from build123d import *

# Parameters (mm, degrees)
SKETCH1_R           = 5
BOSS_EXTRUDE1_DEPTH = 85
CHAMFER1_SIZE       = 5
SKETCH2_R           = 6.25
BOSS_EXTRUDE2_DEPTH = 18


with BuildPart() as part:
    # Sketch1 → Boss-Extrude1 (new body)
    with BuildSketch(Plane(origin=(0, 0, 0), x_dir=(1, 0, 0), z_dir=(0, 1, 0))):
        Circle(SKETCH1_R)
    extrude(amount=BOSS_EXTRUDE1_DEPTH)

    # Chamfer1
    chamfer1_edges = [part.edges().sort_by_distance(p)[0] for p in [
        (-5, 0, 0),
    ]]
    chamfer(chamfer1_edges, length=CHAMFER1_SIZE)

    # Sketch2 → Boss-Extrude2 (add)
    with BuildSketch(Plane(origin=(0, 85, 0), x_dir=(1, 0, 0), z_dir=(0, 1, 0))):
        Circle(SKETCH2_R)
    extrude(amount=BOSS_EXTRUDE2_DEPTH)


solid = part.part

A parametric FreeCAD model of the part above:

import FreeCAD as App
import Part
import Sketcher

V = App.Vector


def edges_at(feature, points):
    """Names of the edges that pass closest to the given points."""
    edges = feature.Shape.Edges
    near = lambda p: min(range(len(edges)), key=lambda i: edges[i].distToShape(Part.Vertex(*p))[0])
    return sorted({f"Edge{near(p) + 1}" for p in points})

doc = App.newDocument("Part")
body = doc.addObject("PartDesign::Body", "Body")

# Sketch on XZ plane
sketch1 = body.newObject("Sketcher::SketchObject", "Sketch")
sketch1.AttachmentSupport = (doc.getObject("XZ_Plane"), [""])
sketch1.MapMode = "FlatFace"
sketch1.addGeometry(Part.Circle(V(0, 0, 0), V(0, 0, 1), 5), False)
sketch1.addConstraint([
    Sketcher.Constraint("Coincident", 0, 3, -1, 1),
    Sketcher.Constraint("Diameter", 0, 10.0),
])
pad1 = body.newObject("PartDesign::Pad", "Pad")
pad1.Profile = sketch1
pad1.Length = 85
pad1.Reversed = True
doc.recompute()

chamfer = body.newObject("PartDesign::Chamfer", "Chamfer")
chamfer.Base = (pad1, edges_at(pad1, [(-5, 0, 0)]))
chamfer.Size = 5

# Sketch on XZ plane
sketch2 = body.newObject("Sketcher::SketchObject", "Sketch001")
sketch2.AttachmentSupport = (doc.getObject("XZ_Plane"), [""])
sketch2.MapMode = "FlatFace"
sketch2.AttachmentOffset = App.Placement(V(0, 0, -85), App.Rotation())
sketch2.addGeometry(Part.Circle(V(0, 0, 0), V(0, 0, 1), 6), False)
sketch2.addConstraint([
    Sketcher.Constraint("Coincident", 0, 3, -1, 1),
    Sketcher.Constraint("Diameter", 0, 12.5),
])
pad2 = body.newObject("PartDesign::Pad", "Pad001")
pad2.Profile = sketch2
pad2.Length = 18
pad2.Reversed = True

doc.recompute()
